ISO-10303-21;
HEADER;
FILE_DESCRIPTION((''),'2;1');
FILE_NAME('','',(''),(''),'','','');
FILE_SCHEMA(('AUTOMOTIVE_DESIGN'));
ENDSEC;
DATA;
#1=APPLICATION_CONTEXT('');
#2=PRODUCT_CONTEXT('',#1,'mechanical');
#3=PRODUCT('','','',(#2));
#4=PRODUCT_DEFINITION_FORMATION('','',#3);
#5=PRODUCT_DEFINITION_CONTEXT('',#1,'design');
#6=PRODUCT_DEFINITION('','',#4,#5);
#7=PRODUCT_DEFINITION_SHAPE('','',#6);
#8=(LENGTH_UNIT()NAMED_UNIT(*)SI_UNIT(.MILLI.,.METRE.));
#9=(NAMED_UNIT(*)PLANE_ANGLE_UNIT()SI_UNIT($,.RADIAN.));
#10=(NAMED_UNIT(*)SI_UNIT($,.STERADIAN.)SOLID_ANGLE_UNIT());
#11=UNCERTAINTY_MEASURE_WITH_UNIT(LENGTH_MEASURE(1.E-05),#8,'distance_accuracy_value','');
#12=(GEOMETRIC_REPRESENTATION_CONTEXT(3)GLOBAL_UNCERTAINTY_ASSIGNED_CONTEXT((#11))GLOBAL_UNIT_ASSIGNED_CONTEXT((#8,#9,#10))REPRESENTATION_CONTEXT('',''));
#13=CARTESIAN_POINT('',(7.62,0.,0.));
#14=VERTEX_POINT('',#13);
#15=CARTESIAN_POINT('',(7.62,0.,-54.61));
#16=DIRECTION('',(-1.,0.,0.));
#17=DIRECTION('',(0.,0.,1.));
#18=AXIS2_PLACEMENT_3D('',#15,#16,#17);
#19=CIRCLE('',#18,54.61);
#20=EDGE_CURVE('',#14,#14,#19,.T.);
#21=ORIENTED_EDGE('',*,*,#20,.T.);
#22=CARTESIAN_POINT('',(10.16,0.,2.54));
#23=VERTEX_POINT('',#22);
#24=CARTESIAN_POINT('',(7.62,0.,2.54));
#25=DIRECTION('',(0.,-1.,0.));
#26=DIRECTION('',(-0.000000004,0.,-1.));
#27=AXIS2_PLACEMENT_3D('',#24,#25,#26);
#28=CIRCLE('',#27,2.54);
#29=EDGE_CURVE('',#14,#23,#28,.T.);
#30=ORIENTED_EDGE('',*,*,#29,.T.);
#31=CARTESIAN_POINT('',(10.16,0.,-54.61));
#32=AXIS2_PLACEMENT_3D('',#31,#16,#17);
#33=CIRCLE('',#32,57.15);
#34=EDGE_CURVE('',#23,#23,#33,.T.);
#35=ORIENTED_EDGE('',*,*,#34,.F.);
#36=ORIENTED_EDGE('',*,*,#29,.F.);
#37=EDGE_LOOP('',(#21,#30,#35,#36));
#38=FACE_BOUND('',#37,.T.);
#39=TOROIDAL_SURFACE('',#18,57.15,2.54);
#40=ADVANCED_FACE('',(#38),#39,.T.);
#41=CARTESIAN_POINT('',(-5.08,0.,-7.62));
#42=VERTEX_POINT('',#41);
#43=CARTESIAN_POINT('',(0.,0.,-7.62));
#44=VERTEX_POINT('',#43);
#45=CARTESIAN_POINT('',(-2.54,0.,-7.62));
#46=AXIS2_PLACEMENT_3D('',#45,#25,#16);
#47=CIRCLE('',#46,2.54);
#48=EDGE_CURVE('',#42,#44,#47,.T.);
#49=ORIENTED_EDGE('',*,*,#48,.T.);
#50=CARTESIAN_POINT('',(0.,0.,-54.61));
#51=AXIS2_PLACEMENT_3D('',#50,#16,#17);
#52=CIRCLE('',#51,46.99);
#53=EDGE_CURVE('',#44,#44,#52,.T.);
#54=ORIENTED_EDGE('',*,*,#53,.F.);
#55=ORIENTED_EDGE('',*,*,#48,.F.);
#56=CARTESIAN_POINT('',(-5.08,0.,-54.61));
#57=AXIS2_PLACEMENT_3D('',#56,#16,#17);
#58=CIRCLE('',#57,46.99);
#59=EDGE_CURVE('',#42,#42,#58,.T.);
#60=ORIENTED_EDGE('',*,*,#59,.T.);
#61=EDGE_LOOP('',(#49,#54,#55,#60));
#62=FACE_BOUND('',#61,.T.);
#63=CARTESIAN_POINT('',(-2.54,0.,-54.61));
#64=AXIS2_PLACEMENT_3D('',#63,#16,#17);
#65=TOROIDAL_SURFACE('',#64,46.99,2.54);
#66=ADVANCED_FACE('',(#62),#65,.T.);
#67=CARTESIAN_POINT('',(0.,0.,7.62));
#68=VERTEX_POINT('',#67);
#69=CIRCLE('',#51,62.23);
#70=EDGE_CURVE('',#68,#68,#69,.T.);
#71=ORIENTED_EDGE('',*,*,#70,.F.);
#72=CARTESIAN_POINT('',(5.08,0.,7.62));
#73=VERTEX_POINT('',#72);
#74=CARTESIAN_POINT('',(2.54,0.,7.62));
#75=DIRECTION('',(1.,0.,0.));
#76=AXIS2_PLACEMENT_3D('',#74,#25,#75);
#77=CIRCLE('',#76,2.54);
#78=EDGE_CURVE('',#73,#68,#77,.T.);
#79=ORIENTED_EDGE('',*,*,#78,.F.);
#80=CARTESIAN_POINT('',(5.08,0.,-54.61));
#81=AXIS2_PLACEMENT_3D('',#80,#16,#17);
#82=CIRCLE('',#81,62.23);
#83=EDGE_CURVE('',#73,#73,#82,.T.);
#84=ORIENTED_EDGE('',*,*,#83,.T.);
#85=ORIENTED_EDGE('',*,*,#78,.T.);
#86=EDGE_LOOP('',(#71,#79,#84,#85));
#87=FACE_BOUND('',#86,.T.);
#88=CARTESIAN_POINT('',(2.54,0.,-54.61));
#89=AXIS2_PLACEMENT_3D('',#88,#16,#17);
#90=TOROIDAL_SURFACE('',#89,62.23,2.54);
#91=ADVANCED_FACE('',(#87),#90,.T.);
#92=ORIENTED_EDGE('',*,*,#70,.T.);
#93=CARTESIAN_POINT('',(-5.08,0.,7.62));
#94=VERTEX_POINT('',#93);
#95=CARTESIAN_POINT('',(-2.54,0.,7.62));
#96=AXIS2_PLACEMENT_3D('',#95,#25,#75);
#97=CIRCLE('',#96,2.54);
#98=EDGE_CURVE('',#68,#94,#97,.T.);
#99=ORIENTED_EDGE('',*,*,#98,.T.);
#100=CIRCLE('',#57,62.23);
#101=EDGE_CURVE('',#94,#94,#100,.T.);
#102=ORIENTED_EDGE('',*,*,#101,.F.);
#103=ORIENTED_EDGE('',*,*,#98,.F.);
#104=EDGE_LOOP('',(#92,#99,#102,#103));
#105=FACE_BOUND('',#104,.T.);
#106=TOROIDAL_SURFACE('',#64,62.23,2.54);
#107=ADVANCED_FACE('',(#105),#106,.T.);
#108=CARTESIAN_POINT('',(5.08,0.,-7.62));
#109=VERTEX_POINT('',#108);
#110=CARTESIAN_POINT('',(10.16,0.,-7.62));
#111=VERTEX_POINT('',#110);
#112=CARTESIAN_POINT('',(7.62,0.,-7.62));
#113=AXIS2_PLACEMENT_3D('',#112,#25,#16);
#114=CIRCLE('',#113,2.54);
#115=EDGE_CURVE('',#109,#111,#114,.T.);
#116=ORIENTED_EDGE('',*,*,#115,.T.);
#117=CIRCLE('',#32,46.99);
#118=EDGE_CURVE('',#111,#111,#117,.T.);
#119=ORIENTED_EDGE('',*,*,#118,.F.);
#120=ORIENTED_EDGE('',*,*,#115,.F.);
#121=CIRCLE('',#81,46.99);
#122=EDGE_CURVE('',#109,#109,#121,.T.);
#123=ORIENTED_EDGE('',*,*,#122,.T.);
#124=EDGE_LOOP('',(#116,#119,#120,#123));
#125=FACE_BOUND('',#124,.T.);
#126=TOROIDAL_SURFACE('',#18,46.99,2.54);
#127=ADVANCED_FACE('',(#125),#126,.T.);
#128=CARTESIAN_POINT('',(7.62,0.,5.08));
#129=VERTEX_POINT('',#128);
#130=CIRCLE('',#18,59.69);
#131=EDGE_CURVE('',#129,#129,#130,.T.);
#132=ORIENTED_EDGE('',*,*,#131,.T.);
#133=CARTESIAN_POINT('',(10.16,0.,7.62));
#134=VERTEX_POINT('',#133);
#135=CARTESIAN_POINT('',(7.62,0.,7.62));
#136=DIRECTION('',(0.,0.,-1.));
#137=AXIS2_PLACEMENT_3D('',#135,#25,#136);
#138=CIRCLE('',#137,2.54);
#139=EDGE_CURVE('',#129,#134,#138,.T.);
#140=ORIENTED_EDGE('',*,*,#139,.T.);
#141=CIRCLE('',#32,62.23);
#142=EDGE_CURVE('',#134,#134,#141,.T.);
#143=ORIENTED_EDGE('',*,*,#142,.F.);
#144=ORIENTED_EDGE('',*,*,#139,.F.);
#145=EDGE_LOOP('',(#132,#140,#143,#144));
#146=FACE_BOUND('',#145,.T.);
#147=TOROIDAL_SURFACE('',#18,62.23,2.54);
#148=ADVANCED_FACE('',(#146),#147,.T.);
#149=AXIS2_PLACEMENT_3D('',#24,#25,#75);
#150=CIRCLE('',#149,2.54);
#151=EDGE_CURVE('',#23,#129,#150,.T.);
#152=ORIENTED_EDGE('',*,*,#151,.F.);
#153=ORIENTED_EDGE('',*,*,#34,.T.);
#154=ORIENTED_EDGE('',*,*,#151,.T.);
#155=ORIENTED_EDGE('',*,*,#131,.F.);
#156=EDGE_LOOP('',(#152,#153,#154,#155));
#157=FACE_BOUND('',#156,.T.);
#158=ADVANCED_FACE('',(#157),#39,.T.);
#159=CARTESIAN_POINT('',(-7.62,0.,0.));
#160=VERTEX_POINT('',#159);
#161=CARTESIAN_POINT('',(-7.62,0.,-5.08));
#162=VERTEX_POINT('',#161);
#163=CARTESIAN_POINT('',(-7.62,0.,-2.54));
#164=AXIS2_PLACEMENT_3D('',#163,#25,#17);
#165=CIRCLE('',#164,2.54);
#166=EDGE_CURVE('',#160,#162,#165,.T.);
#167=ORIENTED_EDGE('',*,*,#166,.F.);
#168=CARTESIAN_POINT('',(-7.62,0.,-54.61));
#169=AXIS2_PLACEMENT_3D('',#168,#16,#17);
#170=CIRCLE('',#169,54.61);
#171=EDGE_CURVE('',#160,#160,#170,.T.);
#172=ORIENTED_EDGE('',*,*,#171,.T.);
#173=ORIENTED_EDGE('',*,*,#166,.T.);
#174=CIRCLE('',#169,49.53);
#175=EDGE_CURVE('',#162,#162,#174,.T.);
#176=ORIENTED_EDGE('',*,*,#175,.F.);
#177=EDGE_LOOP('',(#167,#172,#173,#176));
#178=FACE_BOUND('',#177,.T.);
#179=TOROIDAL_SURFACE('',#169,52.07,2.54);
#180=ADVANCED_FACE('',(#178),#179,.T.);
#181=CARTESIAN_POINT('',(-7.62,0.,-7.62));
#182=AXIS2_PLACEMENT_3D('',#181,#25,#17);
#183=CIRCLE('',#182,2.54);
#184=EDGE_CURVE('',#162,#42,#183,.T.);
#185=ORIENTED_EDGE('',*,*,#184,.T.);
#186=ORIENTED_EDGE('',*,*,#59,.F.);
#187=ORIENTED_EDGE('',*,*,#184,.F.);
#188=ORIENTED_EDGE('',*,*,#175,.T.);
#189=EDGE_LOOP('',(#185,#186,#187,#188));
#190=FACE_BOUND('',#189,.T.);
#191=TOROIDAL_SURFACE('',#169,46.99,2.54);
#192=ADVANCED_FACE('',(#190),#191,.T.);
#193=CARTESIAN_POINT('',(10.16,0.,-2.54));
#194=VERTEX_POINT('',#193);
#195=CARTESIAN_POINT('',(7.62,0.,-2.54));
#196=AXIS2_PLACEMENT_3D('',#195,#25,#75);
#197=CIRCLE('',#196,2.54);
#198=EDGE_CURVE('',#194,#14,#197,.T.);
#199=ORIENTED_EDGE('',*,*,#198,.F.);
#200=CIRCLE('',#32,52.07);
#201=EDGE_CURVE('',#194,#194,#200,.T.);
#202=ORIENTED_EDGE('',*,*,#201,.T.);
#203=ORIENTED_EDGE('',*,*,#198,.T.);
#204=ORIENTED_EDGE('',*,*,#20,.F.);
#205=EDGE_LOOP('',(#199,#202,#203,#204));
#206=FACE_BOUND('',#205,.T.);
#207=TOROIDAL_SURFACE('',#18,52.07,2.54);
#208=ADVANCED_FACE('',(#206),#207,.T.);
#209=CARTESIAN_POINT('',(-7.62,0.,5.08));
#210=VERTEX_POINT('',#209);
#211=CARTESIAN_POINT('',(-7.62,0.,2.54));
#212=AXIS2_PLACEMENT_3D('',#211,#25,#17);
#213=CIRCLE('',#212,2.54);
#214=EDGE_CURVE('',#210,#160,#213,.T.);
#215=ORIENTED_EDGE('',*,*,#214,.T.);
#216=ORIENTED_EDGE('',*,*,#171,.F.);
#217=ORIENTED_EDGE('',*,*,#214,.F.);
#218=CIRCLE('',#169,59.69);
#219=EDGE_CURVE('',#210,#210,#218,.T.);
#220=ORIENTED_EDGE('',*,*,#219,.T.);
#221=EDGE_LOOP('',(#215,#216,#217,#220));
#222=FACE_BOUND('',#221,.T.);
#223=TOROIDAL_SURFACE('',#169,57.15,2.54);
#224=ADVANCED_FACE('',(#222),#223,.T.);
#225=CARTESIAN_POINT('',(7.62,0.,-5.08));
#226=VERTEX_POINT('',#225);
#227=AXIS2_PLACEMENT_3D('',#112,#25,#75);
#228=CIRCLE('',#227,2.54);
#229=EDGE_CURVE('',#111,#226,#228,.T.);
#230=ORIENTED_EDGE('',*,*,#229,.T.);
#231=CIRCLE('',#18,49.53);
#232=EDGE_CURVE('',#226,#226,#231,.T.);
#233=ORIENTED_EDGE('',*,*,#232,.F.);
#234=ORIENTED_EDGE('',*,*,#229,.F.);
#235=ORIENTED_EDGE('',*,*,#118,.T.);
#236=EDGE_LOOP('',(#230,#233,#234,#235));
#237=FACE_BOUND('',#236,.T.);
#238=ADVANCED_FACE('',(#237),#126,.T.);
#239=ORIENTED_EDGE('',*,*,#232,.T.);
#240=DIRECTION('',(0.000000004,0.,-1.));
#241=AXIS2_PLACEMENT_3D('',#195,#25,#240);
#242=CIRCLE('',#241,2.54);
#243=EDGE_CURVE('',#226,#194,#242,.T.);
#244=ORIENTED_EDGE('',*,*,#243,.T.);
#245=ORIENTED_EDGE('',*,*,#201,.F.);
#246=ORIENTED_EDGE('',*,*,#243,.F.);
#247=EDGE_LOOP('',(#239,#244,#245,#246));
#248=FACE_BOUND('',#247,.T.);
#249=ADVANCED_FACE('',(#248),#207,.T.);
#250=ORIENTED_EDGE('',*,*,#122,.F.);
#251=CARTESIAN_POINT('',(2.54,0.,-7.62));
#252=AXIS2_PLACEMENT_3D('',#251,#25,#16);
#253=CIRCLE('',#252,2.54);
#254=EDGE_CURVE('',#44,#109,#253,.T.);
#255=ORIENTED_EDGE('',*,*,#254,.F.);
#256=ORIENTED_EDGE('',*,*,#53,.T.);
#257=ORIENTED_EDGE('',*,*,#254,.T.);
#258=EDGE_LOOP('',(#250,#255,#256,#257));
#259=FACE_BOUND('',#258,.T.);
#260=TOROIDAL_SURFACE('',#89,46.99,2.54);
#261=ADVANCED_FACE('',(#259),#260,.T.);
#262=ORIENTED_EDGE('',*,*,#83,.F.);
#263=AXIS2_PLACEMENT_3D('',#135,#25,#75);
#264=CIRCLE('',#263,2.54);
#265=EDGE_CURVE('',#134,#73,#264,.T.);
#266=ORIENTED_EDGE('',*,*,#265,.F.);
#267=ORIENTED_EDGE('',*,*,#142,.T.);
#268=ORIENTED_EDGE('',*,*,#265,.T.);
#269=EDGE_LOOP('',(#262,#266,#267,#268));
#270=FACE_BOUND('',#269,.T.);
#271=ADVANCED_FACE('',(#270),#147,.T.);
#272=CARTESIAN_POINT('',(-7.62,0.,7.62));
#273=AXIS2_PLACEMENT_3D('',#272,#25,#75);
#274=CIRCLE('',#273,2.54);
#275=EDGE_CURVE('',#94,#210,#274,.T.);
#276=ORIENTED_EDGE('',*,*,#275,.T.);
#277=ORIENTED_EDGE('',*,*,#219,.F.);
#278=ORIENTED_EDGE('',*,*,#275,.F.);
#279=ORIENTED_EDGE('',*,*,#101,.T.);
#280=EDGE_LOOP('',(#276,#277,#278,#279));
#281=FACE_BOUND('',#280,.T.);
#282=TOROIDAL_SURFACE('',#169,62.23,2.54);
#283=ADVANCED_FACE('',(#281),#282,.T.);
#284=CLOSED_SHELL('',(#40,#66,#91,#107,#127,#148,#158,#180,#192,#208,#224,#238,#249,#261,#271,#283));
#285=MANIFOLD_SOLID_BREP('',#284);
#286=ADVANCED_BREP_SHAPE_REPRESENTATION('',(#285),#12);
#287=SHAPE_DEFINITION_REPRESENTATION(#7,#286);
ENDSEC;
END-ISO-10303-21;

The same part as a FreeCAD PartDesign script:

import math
import FreeCAD as App
import Part
import Sketcher
from FreeCAD import Vector
Q = App.Units.Quantity

doc = App.newDocument("Part")
body = doc.addObject("PartDesign::Body", "Body")

# Sketch on XZ plane
sketch1 = body.newObject("Sketcher::SketchObject", "Sketch")
sketch1.AttachmentSupport = (doc.getObject("XZ_Plane"), [""])
sketch1.MapMode = "FlatFace"
sketch1.addGeometry([
    Part.ArcOfCircle(Part.Circle(Vector(7.6, -7.6, 0), Vector(0, 0, 1), 2.5), math.radians(0), math.radians(90)),  # 0
    Part.ArcOfCircle(Part.Circle(Vector(7.6, -2.5, 0), Vector(0, 0, 1), 2.5), math.radians(-90), math.radians(0)),  # 1
    Part.ArcOfCircle(Part.Circle(Vector(7.6, -2.5, 0), Vector(0, 0, 1), 2.5), math.radians(0), math.radians(90)),  # 2
    Part.ArcOfCircle(Part.Circle(Vector(7.6, 2.5, 0), Vector(0, 0, 1), 2.5), math.radians(-90), math.radians(0)),  # 3
    Part.ArcOfCircle(Part.Circle(Vector(7.6, 2.5, 0), Vector(0, 0, 1), 2.5), math.radians(0), math.radians(90)),  # 4
    Part.ArcOfCircle(Part.Circle(Vector(7.6, 7.6, 0), Vector(0, 0, 1), 2.5), math.radians(-90), math.radians(0)),  # 5
    Part.ArcOfCircle(Part.Circle(Vector(7.6, 7.6, 0), Vector(0, 0, 1), 2.5), math.radians(0), math.radians(180)),  # 6
    Part.ArcOfCircle(Part.Circle(Vector(2.5, 7.6, 0), Vector(0, 0, 1), 2.5), math.radians(0), math.radians(180)),  # 7
    Part.ArcOfCircle(Part.Circle(Vector(-2.5, 7.6, 0), Vector(0, 0, 1), 2.5), math.radians(0), math.radians(180)),  # 8
    Part.ArcOfCircle(Part.Circle(Vector(-7.6, 7.6, 0), Vector(0, 0, 1), 2.5), math.radians(0), math.radians(270)),  # 9
    Part.ArcOfCircle(Part.Circle(Vector(-7.6, 2.5, 0), Vector(0, 0, 1), 2.5), math.radians(90), math.radians(270)),  # 10
    Part.ArcOfCircle(Part.Circle(Vector(-7.6, -2.5, 0), Vector(0, 0, 1), 2.5), math.radians(90), math.radians(270)),  # 11
    Part.ArcOfCircle(Part.Circle(Vector(-7.6, -7.6, 0), Vector(0, 0, 1), 2.5), math.radians(90), math.radians(360)),  # 12
    Part.ArcOfCircle(Part.Circle(Vector(-2.5, -7.6, 0), Vector(0, 0, 1), 2.5), math.radians(180), math.radians(360)),  # 13
    Part.ArcOfCircle(Part.Circle(Vector(2.5, -7.6, 0), Vector(0, 0, 1), 2.5), math.radians(180), math.radians(360)),  # 14
    Part.ArcOfCircle(Part.Circle(Vector(7.6, -7.6, 0), Vector(0, 0, 1), 2.5), math.radians(180), math.radians(360)),  # 15
], False)
sketch1.addGeometry(Part.LineSegment(Vector(10.2, -54.6, 0), Vector(-7.6, -54.6, 0)), True)  # axis
sketch1.addConstraint([
    Sketcher.Constraint("Tangent", 0, 2, 1, 1),
    Sketcher.Constraint("Tangent", 1, 2, 2, 1),
    Sketcher.Constraint("Tangent", 2, 2, 3, 1),
    Sketcher.Constraint("Tangent", 3, 2, 4, 1),
    Sketcher.Constraint("Tangent", 4, 2, 5, 1),
    Sketcher.Constraint("Tangent", 5, 2, 6, 1),
    Sketcher.Constraint("Tangent", 6, 2, 7, 1),
    Sketcher.Constraint("Tangent", 7, 2, 8, 1),
    Sketcher.Constraint("Tangent", 8, 2, 9, 1),
    Sketcher.Constraint("Tangent", 9, 2, 10, 1),
    Sketcher.Constraint("Tangent", 10, 2, 11, 1),
    Sketcher.Constraint("Tangent", 11, 2, 12, 1),
    Sketcher.Constraint("Tangent", 12, 2, 13, 1),
    Sketcher.Constraint("Tangent", 13, 2, 14, 1),
    Sketcher.Constraint("Tangent", 14, 2, 15, 1),
    Sketcher.Constraint("Tangent", 15, 2, 0, 1),
    Sketcher.Constraint("Horizontal", 16),
    Sketcher.Constraint("Equal", 0, 1),
    Sketcher.Constraint("Equal", 1, 2),
    Sketcher.Constraint("Equal", 2, 3),
    Sketcher.Constraint("Equal", 3, 4),
    Sketcher.Constraint("Equal", 4, 5),
    Sketcher.Constraint("Equal", 5, 6),
    Sketcher.Constraint("Equal", 6, 7),
    Sketcher.Constraint("Equal", 7, 8),
    Sketcher.Constraint("Equal", 8, 9),
    Sketcher.Constraint("Equal", 9, 10),
    Sketcher.Constraint("Equal", 10, 11),
    Sketcher.Constraint("Equal", 11, 12),
    Sketcher.Constraint("Equal", 12, 13),
    Sketcher.Constraint("Equal", 13, 14),
    Sketcher.Constraint("Equal", 14, 15),
    Sketcher.Constraint("Symmetric", 0, 3, 9, 3, -1, 1),
    Sketcher.Constraint("Symmetric", 7, 3, 8, 3, -2),
    Sketcher.Constraint("Symmetric", 3, 3, 10, 3, -2),
    Sketcher.Constraint("Symmetric", 1, 2, 3, 2, -1),
    Sketcher.Constraint("Horizontal", 6, 3, 7, 3),
    Sketcher.Constraint("Horizontal", 12, 3, 13, 3),
    Sketcher.Constraint("Horizontal", 13, 3, 14, 3),
    Sketcher.Constraint("Horizontal", 11, 3, 1, 2),
    Sketcher.Constraint("Horizontal", 9, 3, 5, 2),
    Sketcher.Constraint("Horizontal", 14, 2, 15, 2),
    Sketcher.Constraint("Vertical", 0, 3, 1, 3),
    Sketcher.Constraint("Vertical", 10, 3, 11, 3),
    Sketcher.Constraint("Vertical", 15, 2, 16, 1),
    Sketcher.Constraint("Vertical", 11, 2, 16, 2),
    Sketcher.Constraint("Radius", 0, Q("0.1 in")),
    Sketcher.Constraint("DistanceY", 16, 1, -1, 1, Q("2.15 in")),
])
revolution = body.newObject("PartDesign::Revolution", "Revolution")
revolution.Profile = sketch1
revolution.ReferenceAxis = (sketch1, ["Axis0"])
revolution.Angle = 360

doc.recompute()
